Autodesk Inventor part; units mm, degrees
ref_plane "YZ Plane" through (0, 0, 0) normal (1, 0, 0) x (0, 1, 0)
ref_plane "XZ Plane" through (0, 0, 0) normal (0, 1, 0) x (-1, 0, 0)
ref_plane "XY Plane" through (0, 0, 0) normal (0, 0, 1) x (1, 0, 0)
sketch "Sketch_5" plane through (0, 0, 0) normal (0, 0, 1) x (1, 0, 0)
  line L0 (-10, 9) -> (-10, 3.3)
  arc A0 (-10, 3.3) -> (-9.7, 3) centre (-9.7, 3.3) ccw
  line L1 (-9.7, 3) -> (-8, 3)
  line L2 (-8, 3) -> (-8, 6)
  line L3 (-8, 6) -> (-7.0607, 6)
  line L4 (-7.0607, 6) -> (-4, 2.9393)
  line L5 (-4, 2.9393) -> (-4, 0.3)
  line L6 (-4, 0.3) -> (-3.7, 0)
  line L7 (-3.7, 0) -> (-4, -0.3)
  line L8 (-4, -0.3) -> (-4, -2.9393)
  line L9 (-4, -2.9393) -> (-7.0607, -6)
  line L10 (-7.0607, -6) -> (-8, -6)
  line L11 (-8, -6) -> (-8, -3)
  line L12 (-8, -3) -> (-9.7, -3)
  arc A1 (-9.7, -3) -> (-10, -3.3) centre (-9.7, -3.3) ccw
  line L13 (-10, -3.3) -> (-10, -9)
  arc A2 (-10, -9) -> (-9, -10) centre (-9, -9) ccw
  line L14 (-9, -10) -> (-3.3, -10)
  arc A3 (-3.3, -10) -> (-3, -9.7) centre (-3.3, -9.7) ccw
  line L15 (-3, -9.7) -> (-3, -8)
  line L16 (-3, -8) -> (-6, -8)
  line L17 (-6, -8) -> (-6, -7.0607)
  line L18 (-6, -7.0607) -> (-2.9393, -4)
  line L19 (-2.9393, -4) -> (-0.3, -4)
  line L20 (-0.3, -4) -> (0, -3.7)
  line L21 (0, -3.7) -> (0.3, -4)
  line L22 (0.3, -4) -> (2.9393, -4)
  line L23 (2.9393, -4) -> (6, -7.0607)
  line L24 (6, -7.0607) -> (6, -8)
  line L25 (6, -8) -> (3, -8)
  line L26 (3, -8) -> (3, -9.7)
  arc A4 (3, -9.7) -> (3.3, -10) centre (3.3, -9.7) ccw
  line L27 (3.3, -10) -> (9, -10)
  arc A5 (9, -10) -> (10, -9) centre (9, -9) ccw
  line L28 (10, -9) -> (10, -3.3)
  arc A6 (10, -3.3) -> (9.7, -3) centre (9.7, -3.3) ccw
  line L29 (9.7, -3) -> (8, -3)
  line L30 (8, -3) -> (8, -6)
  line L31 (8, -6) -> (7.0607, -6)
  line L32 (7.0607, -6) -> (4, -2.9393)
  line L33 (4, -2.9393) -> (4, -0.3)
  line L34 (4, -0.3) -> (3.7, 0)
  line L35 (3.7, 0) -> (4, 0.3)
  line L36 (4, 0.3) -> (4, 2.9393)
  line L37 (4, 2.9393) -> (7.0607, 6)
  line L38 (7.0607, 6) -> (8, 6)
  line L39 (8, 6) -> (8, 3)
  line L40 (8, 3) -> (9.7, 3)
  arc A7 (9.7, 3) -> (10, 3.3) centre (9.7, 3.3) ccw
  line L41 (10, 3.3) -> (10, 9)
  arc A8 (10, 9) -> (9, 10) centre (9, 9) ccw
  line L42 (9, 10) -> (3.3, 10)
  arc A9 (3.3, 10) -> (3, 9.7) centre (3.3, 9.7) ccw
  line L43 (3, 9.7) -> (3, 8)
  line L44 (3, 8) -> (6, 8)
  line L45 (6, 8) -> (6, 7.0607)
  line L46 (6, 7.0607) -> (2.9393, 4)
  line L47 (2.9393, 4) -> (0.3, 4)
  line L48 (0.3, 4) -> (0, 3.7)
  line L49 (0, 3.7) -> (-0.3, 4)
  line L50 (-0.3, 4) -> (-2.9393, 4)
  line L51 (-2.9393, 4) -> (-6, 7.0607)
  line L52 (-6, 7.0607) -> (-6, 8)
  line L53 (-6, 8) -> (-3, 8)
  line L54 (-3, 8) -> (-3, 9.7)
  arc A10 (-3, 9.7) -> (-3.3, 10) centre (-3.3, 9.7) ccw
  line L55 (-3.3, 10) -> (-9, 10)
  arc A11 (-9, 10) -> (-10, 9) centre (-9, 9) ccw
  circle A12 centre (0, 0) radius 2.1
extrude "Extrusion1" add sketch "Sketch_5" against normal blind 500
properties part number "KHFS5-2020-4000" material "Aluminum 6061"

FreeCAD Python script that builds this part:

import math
import FreeCAD as App
import Part
import Sketcher

doc = App.newDocument("Part")
params = doc.addObject("Spreadsheet::Sheet", "Params")
for row, (alias, value) in enumerate([
    ("sketch1_radius", "1 mm"),
    ("sketch1_diameter", "4.2 mm"),
    ("sketch1_radius2", "0.3 mm"),
    ("sketch1_width", "3 mm"),
    ("sketch1_width2", "1.7 mm"),
    ("pad1_length", "500 mm"),
], start=1):
    params.set(f"A{row}", alias)
    params.set(f"B{row}", "=" + value)
    params.setAlias(f"B{row}", alias)

body = doc.addObject("PartDesign::Body", "Body")

# Sketch on XY plane
sketch1 = doc.addObject("Sketcher::SketchObject", "Sketch")
body.addObject(sketch1)
sketch1.AttachmentSupport = (doc.XY_Plane, [""])
sketch1.MapMode = "FlatFace"
sketch1.addGeometry([
    Part.ArcOfCircle(Part.Circle(App.Vector(-9, 9, 0), App.Vector(0, 0, 1), 1), math.radians(90), math.radians(180)),  # 0
    Part.LineSegment(App.Vector(-10, 9, 0), App.Vector(-10, 3.3, 0)),  # 1
    Part.ArcOfCircle(Part.Circle(App.Vector(-9.7, 3.3, 0), App.Vector(0, 0, 1), 0.3), math.radians(180), math.radians(270)),  # 2
    Part.LineSegment(App.Vector(-9.7, 3, 0), App.Vector(-8, 3, 0)),  # 3
    Part.LineSegment(App.Vector(-8, 3, 0), App.Vector(-8, 6, 0)),  # 4
    Part.LineSegment(App.Vector(-8, 6, 0), App.Vector(-7.0607, 6, 0)),  # 5
    Part.LineSegment(App.Vector(-7.0607, 6, 0), App.Vector(-4, 2.9393, 0)),  # 6
    Part.LineSegment(App.Vector(-4, 2.9393, 0), App.Vector(-4, 0.3, 0)),  # 7
    Part.LineSegment(App.Vector(-4, 0.3, 0), App.Vector(-3.7, 0, 0)),  # 8
    Part.LineSegment(App.Vector(-3.7, 0, 0), App.Vector(-4, -0.3, 0)),  # 9
    Part.LineSegment(App.Vector(-4, -0.3, 0), App.Vector(-4, -2.9393, 0)),  # 10
    Part.LineSegment(App.Vector(-4, -2.9393, 0), App.Vector(-7.0607, -6, 0)),  # 11
    Part.LineSegment(App.Vector(-7.0607, -6, 0), App.Vector(-8, -6, 0)),  # 12
    Part.LineSegment(App.Vector(-8, -6, 0), App.Vector(-8, -3, 0)),  # 13
    Part.LineSegment(App.Vector(-8, -3, 0), App.Vector(-9.7, -3, 0)),  # 14
    Part.ArcOfCircle(Part.Circle(App.Vector(-9.7, -3.3, 0), App.Vector(0, 0, 1), 0.3), math.radians(90), math.radians(180)),  # 15
    Part.LineSegment(App.Vector(-10, -3.3, 0), App.Vector(-10, -9, 0)),  # 16
    Part.ArcOfCircle(Part.Circle(App.Vector(-9, -9, 0), App.Vector(0, 0, 1), 1), math.radians(180), math.radians(270)),  # 17
    Part.LineSegment(App.Vector(-9, -10, 0), App.Vector(-3.3, -10, 0)),  # 18
    Part.ArcOfCircle(Part.Circle(App.Vector(-3.3, -9.7, 0), App.Vector(0, 0, 1), 0.3), math.radians(-90), math.radians(0)),  # 19
    Part.LineSegment(App.Vector(-3, -9.7, 0), App.Vector(-3, -8, 0)),  # 20
    Part.LineSegment(App.Vector(-3, -8, 0), App.Vector(-6, -8, 0)),  # 21
    Part.LineSegment(App.Vector(-6, -8, 0), App.Vector(-6, -7.0607, 0)),  # 22
    Part.LineSegment(App.Vector(-6, -7.0607, 0), App.Vector(-2.9393, -4, 0)),  # 23
    Part.LineSegment(App.Vector(-2.9393, -4, 0), App.Vector(-0.3, -4, 0)),  # 24
    Part.LineSegment(App.Vector(-0.3, -4, 0), App.Vector(0, -3.7, 0)),  # 25
    Part.LineSegment(App.Vector(0, -3.7, 0), App.Vector(0.3, -4, 0)),  # 26
    Part.LineSegment(App.Vector(0.3, -4, 0), App.Vector(2.9393, -4, 0)),  # 27
    Part.LineSegment(App.Vector(2.9393, -4, 0), App.Vector(6, -7.0607, 0)),  # 28
    Part.LineSegment(App.Vector(6, -7.0607, 0), App.Vector(6, -8, 0)),  # 29
    Part.LineSegment(App.Vector(6, -8, 0), App.Vector(3, -8, 0)),  # 30
    Part.LineSegment(App.Vector(3, -8, 0), App.Vector(3, -9.7, 0)),  # 31
    Part.ArcOfCircle(Part.Circle(App.Vector(3.3, -9.7, 0), App.Vector(0, 0, 1), 0.3), math.radians(180), math.radians(270)),  # 32
    Part.LineSegment(App.Vector(3.3, -10, 0), App.Vector(9, -10, 0)),  # 33
    Part.ArcOfCircle(Part.Circle(App.Vector(9, -9, 0), App.Vector(0, 0, 1), 1), math.radians(-90), math.radians(0)),  # 34
    Part.LineSegment(App.Vector(10, -9, 0), App.Vector(10, -3.3, 0)),  # 35
    Part.ArcOfCircle(Part.Circle(App.Vector(9.7, -3.3, 0), App.Vector(0, 0, 1), 0.3), math.radians(0), math.radians(90)),  # 36
    Part.LineSegment(App.Vector(9.7, -3, 0), App.Vector(8, -3, 0)),  # 37
    Part.LineSegment(App.Vector(8, -3, 0), App.Vector(8, -6, 0)),  # 38
    Part.LineSegment(App.Vector(8, -6, 0), App.Vector(7.0607, -6, 0)),  # 39
    Part.LineSegment(App.Vector(7.0607, -6, 0), App.Vector(4, -2.9393, 0)),  # 40
    Part.LineSegment(App.Vector(4, -2.9393, 0), App.Vector(4, -0.3, 0)),  # 41
    Part.LineSegment(App.Vector(4, -0.3, 0), App.Vector(3.7, 0, 0)),  # 42
    Part.LineSegment(App.Vector(3.7, 0, 0), App.Vector(4, 0.3, 0)),  # 43
    Part.LineSegment(App.Vector(4, 0.3, 0), App.Vector(4, 2.9393, 0)),  # 44
    Part.LineSegment(App.Vector(4, 2.9393, 0), App.Vector(7.0607, 6, 0)),  # 45
    Part.LineSegment(App.Vector(7.0607, 6, 0), App.Vector(8, 6, 0)),  # 46
    Part.LineSegment(App.Vector(8, 6, 0), App.Vector(8, 3, 0)),  # 47
    Part.LineSegment(App.Vector(8, 3, 0), App.Vector(9.7, 3, 0)),  # 48
    Part.ArcOfCircle(Part.Circle(App.Vector(9.7, 3.3, 0), App.Vector(0, 0, 1), 0.3), math.radians(-90), math.radians(0)),  # 49
    Part.LineSegment(App.Vector(10, 3.3, 0), App.Vector(10, 9, 0)),  # 50
    Part.ArcOfCircle(Part.Circle(App.Vector(9, 9, 0), App.Vector(0, 0, 1), 1), math.radians(0), math.radians(90)),  # 51
    Part.LineSegment(App.Vector(9, 10, 0), App.Vector(3.3, 10, 0)),  # 52
    Part.ArcOfCircle(Part.Circle(App.Vector(3.3, 9.7, 0), App.Vector(0, 0, 1), 0.3), math.radians(90), math.radians(180)),  # 53
    Part.LineSegment(App.Vector(3, 9.7, 0), App.Vector(3, 8, 0)),  # 54
    Part.LineSegment(App.Vector(3, 8, 0), App.Vector(6, 8, 0)),  # 55
    Part.LineSegment(App.Vector(6, 8, 0), App.Vector(6, 7.0607, 0)),  # 56
    Part.LineSegment(App.Vector(6, 7.0607, 0), App.Vector(2.9393, 4, 0)),  # 57
    Part.LineSegment(App.Vector(2.9393, 4, 0), App.Vector(0.3, 4, 0)),  # 58
    Part.LineSegment(App.Vector(0.3, 4, 0), App.Vector(0, 3.7, 0)),  # 59
    Part.LineSegment(App.Vector(0, 3.7, 0), App.Vector(-0.3, 4, 0)),  # 60
    Part.LineSegment(App.Vector(-0.3, 4, 0), App.Vector(-2.9393, 4, 0)),  # 61
    Part.LineSegment(App.Vector(-2.9393, 4, 0), App.Vector(-6, 7.0607, 0)),  # 62
    Part.LineSegment(App.Vector(-6, 7.0607, 0), App.Vector(-6, 8, 0)),  # 63
    Part.LineSegment(App.Vector(-6, 8, 0), App.Vector(-3, 8, 0)),  # 64
    Part.LineSegment(App.Vector(-3, 8, 0), App.Vector(-3, 9.7, 0)),  # 65
    Part.ArcOfCircle(Part.Circle(App.Vector(-3.3, 9.7, 0), App.Vector(0, 0, 1), 0.3), math.radians(0), math.radians(90)),  # 66
    Part.LineSegment(App.Vector(-3.3, 10, 0), App.Vector(-9, 10, 0)),  # 67
    Part.Circle(App.Vector(0, 0, 0), App.Vector(0, 0, 1), 2.1),  # 68
], False)
sketch1.addConstraint([
    Sketcher.Constraint("Tangent", 0, 2, 1, 1),
    Sketcher.Constraint("Tangent", 1, 2, 2, 1),
    Sketcher.Constraint("Tangent", 2, 2, 3, 1),
    Sketcher.Constraint("Coincident", 3, 2, 4, 1),
    Sketcher.Constraint("Coincident", 4, 2, 5, 1),
    Sketcher.Constraint("Coincident", 5, 2, 6, 1),
    Sketcher.Constraint("Coincident", 6, 2, 7, 1),
    Sketcher.Constraint("Coincident", 7, 2, 8, 1),
    Sketcher.Constraint("Coincident", 8, 2, 9, 1),
    Sketcher.Constraint("Coincident", 9, 2, 10, 1),
    Sketcher.Constraint("Coincident", 10, 2, 11, 1),
    Sketcher.Constraint("Coincident", 11, 2, 12, 1),
    Sketcher.Constraint("Coincident", 12, 2, 13, 1),
    Sketcher.Constraint("Coincident", 13, 2, 14, 1),
    Sketcher.Constraint("Tangent", 14, 2, 15, 1),
    Sketcher.Constraint("Tangent", 15, 2, 16, 1),
    Sketcher.Constraint("Tangent", 16, 2, 17, 1),
    Sketcher.Constraint("Tangent", 17, 2, 18, 1),
    Sketcher.Constraint("Tangent", 18, 2, 19, 1),
    Sketcher.Constraint("Tangent", 19, 2, 20, 1),
    Sketcher.Constraint("Coincident", 20, 2, 21, 1),
    Sketcher.Constraint("Coincident", 21, 2, 22, 1),
    Sketcher.Constraint("Coincident", 22, 2, 23, 1),
    Sketcher.Constraint("Coincident", 23, 2, 24, 1),
    Sketcher.Constraint("Coincident", 24, 2, 25, 1),
    Sketcher.Constraint("Coincident", 25, 2, 26, 1),
    Sketcher.Constraint("Coincident", 26, 2, 27, 1),
    Sketcher.Constraint("Coincident", 27, 2, 28, 1),
    Sketcher.Constraint("Coincident", 28, 2, 29, 1),
    Sketcher.Constraint("Coincident", 29, 2, 30, 1),
    Sketcher.Constraint("Coincident", 30, 2, 31, 1),
    Sketcher.Constraint("Tangent", 31, 2, 32, 1),
    Sketcher.Constraint("Tangent", 32, 2, 33, 1),
    Sketcher.Constraint("Tangent", 33, 2, 34, 1),
    Sketcher.Constraint("Tangent", 34, 2, 35, 1),
    Sketcher.Constraint("Tangent", 35, 2, 36, 1),
    Sketcher.Constraint("Tangent", 36, 2, 37, 1),
    Sketcher.Constraint("Coincident", 37, 2, 38, 1),
    Sketcher.Constraint("Coincident", 38, 2, 39, 1),
    Sketcher.Constraint("Coincident", 39, 2, 40, 1),
    Sketcher.Constraint("Coincident", 40, 2, 41, 1),
    Sketcher.Constraint("Coincident", 41, 2, 42, 1),
    Sketcher.Constraint("Coincident", 42, 2, 43, 1),
    Sketcher.Constraint("Coincident", 43, 2, 44, 1),
    Sketcher.Constraint("Coincident", 44, 2, 45, 1),
    Sketcher.Constraint("Coincident", 45, 2, 46, 1),
    Sketcher.Constraint("Coincident", 46, 2, 47, 1),
    Sketcher.Constraint("Coincident", 47, 2, 48, 1),
    Sketcher.Constraint("Tangent", 48, 2, 49, 1),
    Sketcher.Constraint("Tangent", 49, 2, 50, 1),
    Sketcher.Constraint("Tangent", 50, 2, 51, 1),
    Sketcher.Constraint("Tangent", 51, 2, 52, 1),
    Sketcher.Constraint("Tangent", 52, 2, 53, 1),
    Sketcher.Constraint("Tangent", 53, 2, 54, 1),
    Sketcher.Constraint("Coincident", 54, 2, 55, 1),
    Sketcher.Constraint("Coincident", 55, 2, 56, 1),
    Sketcher.Constraint("Coincident", 56, 2, 57, 1),
    Sketcher.Constraint("Coincident", 57, 2, 58, 1),
    Sketcher.Constraint("Coincident", 58, 2, 59, 1),
    Sketcher.Constraint("Coincident", 59, 2, 60, 1),
    Sketcher.Constraint("Coincident", 60, 2, 61, 1),
    Sketcher.Constraint("Coincident", 61, 2, 62, 1),
    Sketcher.Constraint("Coincident", 62, 2, 63, 1),
    Sketcher.Constraint("Coincident", 63, 2, 64, 1),
    Sketcher.Constraint("Coincident", 64, 2, 65, 1),
    Sketcher.Constraint("Tangent", 65, 2, 66, 1),
    Sketcher.Constraint("Tangent", 66, 2, 67, 1),
    Sketcher.Constraint("Tangent", 67, 2, 0, 1),
    Sketcher.Constraint("Vertical", 1),
    Sketcher.Constraint("Horizontal", 3),
    Sketcher.Constraint("Vertical", 4),
    Sketcher.Constraint("Horizontal", 5),
    Sketcher.Constraint("Vertical", 7),
    Sketcher.Constraint("Vertical", 10),
    Sketcher.Constraint("Horizontal", 12),
    Sketcher.Constraint("Vertical", 13),
    Sketcher.Constraint("Horizontal", 14),
    Sketcher.Constraint("Vertical", 16),
    Sketcher.Constraint("Horizontal", 18),
    Sketcher.Constraint("Vertical", 20),
    Sketcher.Constraint("Horizontal", 21),
    Sketcher.Constraint("Vertical", 22),
    Sketcher.Constraint("Horizontal", 24),
    Sketcher.Constraint("Horizontal", 27),
    Sketcher.Constraint("Vertical", 29),
    Sketcher.Constraint("Horizontal", 30),
    Sketcher.Constraint("Vertical", 31),
    Sketcher.Constraint("Horizontal", 33),
    Sketcher.Constraint("Vertical", 35),
    Sketcher.Constraint("Horizontal", 37),
    Sketcher.Constraint("Vertical", 38),
    Sketcher.Constraint("Horizontal", 39),
    Sketcher.Constraint("Vertical", 41),
    Sketcher.Constraint("Vertical", 44),
    Sketcher.Constraint("Horizontal", 46),
    Sketcher.Constraint("Vertical", 47),
    Sketcher.Constraint("Horizontal", 48),
    Sketcher.Constraint("Vertical", 50),
    Sketcher.Constraint("Horizontal", 52),
    Sketcher.Constraint("Vertical", 54),
    Sketcher.Constraint("Horizontal", 55),
    Sketcher.Constraint("Vertical", 56),
    Sketcher.Constraint("Horizontal", 58),
    Sketcher.Constraint("Horizontal", 61),
    Sketcher.Constraint("Vertical", 63),
    Sketcher.Constraint("Horizontal", 64),
    Sketcher.Constraint("Vertical", 65),
    Sketcher.Constraint("Horizontal", 67),
    Sketcher.Constraint("Coincident", 68, 3, -1, 1),
    Sketcher.Constraint("Equal", 2, 15),
    Sketcher.Constraint("Equal", 0, 17),
    Sketcher.Constraint("Equal", 15, 19),
    Sketcher.Constraint("Equal", 19, 32),
    Sketcher.Constraint("Equal", 17, 34),
    Sketcher.Constraint("Equal", 32, 36),
    Sketcher.Constraint("Equal", 36, 49),
    Sketcher.Constraint("Equal", 34, 51),
    Sketcher.Constraint("Equal", 49, 53),
    Sketcher.Constraint("Equal", 53, 66),
    Sketcher.Constraint("Symmetric", 0, 3, 34, 3, -1, 1),
    Sketcher.Constraint("Symmetric", 15, 3, 49, 3, -1, 1),
    Sketcher.Constraint("Symmetric", 19, 3, 53, 3, -1, 1),
    Sketcher.Constraint("Symmetric", 3, 2, 37, 2, -1, 1),
    Sketcher.Constraint("Symmetric", 5, 2, 39, 2, -1, 1),
    Sketcher.Constraint("Symmetric", 6, 2, 40, 2, -1, 1),
    Sketcher.Constraint("Symmetric", 8, 2, 42, 2, -1, 1),
    Sketcher.Constraint("Symmetric", 9, 2, 43, 2, -1, 1),
    Sketcher.Constraint("Symmetric", 11, 2, 45, 2, -1, 1),
    Sketcher.Constraint("Symmetric", 21, 2, 55, 2, -1, 1),
    Sketcher.Constraint("Symmetric", 23, 2, 57, 2, -1, 1),
    Sketcher.Constraint("Symmetric", 25, 2, 59, 2, -1, 1),
    Sketcher.Constraint("Symmetric", 26, 2, 60, 2, -1, 1),
    Sketcher.Constraint("Symmetric", 28, 2, 62, 2, -1, 1),
    Sketcher.Constraint("Symmetric", 30, 2, 64, 2, -1, 1),
    Sketcher.Constraint("Symmetric", 19, 3, 32, 3, -2),
    Sketcher.Constraint("Symmetric", 15, 3, 36, 3, -2),
    Sketcher.Constraint("Symmetric", 24, 2, 26, 2, -2),
    Sketcher.Constraint("Symmetric", 22, 2, 28, 2, -2),
    Sketcher.Constraint("Symmetric", 12, 2, 38, 2, -2),
    Sketcher.Constraint("Symmetric", 10, 2, 40, 2, -2),
    Sketcher.Constraint("PointOnObject", 8, 2, -1),
    Sketcher.Constraint("PointOnObject", 25, 2, -2),
    Sketcher.Constraint("Parallel", 6, 8),
    Sketcher.Constraint("Perpendicular", 8, 9),
    Sketcher.Constraint("Parallel", 9, 11),
    Sketcher.Constraint("Parallel", 11, 23),
    Sketcher.Constraint("Parallel", 23, 25),
    Sketcher.Constraint("Perpendicular", 25, 26),
    Sketcher.Constraint("Parallel", 26, 28),
    Sketcher.Constraint("Parallel", 40, 42),
    Sketcher.Constraint("Parallel", 43, 45),
    Sketcher.Constraint("Parallel", 45, 57),
    Sketcher.Constraint("Parallel", 57, 59),
    Sketcher.Constraint("Parallel", 60, 62),
    Sketcher.Constraint("Horizontal", 21, 2, 29, 2),
    Sketcher.Constraint("Vertical", 38, 2, 46, 2),
    Sketcher.Constraint("Equal", 67, 1),
    Sketcher.Constraint("Equal", 64, 4),
    Sketcher.Constraint("Equal", 61, 7),
    Sketcher.Constraint("Equal", 48, 20),
    Sketcher.Constraint("Equal", 46, 22),
    Sketcher.Constraint("Equal", 11, 23),
    Sketcher.Constraint("Equal", 9, 25),
    Sketcher.Constraint("Radius", 0, 1.0),
    Sketcher.Constraint("Diameter", 68, 4.2),
    Sketcher.Constraint("Radius", 2, 0.3),
    Sketcher.Constraint("DistanceX", 21, 2, 21, 1, 3.0),
    Sketcher.Constraint("DistanceX", 3, 1, 3, 2, 1.7),
    Sketcher.Constraint("DistanceX", 18, 1, 18, 2, 5.7),
    Sketcher.Constraint("DistanceX", 0, 3, -1, 1, 9.0),
    Sketcher.Constraint("DistanceX", 6, 2, -1, 1, 4.0),
    Sketcher.Constraint("DistanceY", -1, 1, 7, 2, 0.3),
    Sketcher.Constraint("DistanceX", 5, 1, 5, 2, 0.9393),
])
sketch1.setExpression("Constraints[163]", "Params.sketch1_radius")
sketch1.setExpression("Constraints[164]", "Params.sketch1_diameter")
sketch1.setExpression("Constraints[165]", "Params.sketch1_radius2")
sketch1.setExpression("Constraints[166]", "Params.sketch1_width")
sketch1.setExpression("Constraints[167]", "Params.sketch1_width2")
pad1 = doc.addObject("PartDesign::Pad", "Pad")
body.addObject(pad1)
pad1.Profile = sketch1
pad1.setExpression("Length", "Params.pad1_length")
pad1.Reversed = True

doc.recompute()
